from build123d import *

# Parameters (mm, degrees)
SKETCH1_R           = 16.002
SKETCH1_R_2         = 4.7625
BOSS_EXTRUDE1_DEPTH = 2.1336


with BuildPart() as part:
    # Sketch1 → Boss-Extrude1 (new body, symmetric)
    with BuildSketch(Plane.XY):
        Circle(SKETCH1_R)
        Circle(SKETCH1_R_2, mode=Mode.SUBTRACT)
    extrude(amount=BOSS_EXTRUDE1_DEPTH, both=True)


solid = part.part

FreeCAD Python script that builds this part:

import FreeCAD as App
import Part
import Sketcher
Q = App.Units.Quantity

doc = App.newDocument("Part")
params = doc.addObject("Spreadsheet::Sheet", "Params")
for row, (alias, value) in enumerate([
    ("sketch1_diameter", "1.26 in"),
    ("sketch1_diameter2", "0.375 in"),
    ("pad1_length", "0.168 in"),
], start=1):
    params.set(f"A{row}", alias)
    params.set(f"B{row}", "=" + value)
    params.setAlias(f"B{row}", alias)

body = doc.addObject("PartDesign::Body", "Body")

sketch1 = body.newObject("Sketcher::SketchObject", "Sketch")
sketch1.AttachmentSupport = (doc.getObject("XY_Plane"), [""])
sketch1.MapMode = "FlatFace"
sketch1.addGeometry(Part.Circle(App.Vector(0, 0, 0), App.Vector(0, 0, 1), 16), False)
sketch1.addGeometry(Part.Circle(App.Vector(0, 0, 0), App.Vector(0, 0, 1), 4.8), False)
sketch1.addConstraint(Sketcher.Constraint("Coincident", 0, 3, -1, 1))
sketch1.addConstraint(Sketcher.Constraint("Coincident", 1, 3, -1, 1))
sketch1.addConstraint(Sketcher.Constraint("Diameter", 0, Q("1.26 in")))
sketch1.addConstraint(Sketcher.Constraint("Diameter", 1, Q("0.375 in")))
sketch1.setExpression("Constraints[2]", "Params.sketch1_diameter")
sketch1.setExpression("Constraints[3]", "Params.sketch1_diameter2")
pad1 = body.newObject("PartDesign::Pad", "Pad")
pad1.Profile = sketch1
pad1.setExpression("Length", "Params.pad1_length")
pad1.Midplane = True

doc.recompute()
